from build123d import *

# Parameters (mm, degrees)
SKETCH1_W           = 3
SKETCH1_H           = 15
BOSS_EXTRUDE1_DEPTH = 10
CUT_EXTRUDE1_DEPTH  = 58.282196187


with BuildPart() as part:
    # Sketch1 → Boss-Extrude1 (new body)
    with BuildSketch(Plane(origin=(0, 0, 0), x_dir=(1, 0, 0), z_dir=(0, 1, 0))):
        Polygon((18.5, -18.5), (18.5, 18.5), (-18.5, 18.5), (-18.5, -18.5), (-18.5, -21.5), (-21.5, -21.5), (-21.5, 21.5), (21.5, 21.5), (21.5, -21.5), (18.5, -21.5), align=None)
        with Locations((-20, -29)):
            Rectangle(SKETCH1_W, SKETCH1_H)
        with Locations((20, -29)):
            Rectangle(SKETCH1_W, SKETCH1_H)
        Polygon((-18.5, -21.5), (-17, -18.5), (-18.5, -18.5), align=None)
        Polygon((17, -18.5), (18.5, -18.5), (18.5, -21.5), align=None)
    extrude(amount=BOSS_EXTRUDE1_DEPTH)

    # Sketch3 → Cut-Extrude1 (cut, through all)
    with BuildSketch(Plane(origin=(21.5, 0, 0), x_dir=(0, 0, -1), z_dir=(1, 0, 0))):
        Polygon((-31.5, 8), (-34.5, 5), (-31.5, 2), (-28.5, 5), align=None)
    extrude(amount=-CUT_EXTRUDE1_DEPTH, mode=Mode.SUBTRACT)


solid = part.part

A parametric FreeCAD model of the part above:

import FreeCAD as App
import Part
import Sketcher
Q = App.Units.Quantity

doc = App.newDocument("Part")
body = doc.addObject("PartDesign::Body", "Body")

sketch1 = doc.addObject("Sketcher::SketchObject", "Sketch")
body.addObject(sketch1)
sketch1.AttachmentSupport = (doc.XZ_Plane, [""])
sketch1.MapMode = "FlatFace"
sketch1.addGeometry(Part.LineSegment(App.Vector(18.5, -18.5, 0), App.Vector(18.5, 18.5, 0)), False)
sketch1.addGeometry(Part.LineSegment(App.Vector(18.5, 18.5, 0), App.Vector(17, 18.5, 0)), False)
sketch1.addGeometry(Part.LineSegment(App.Vector(17, 18.5, 0), App.Vector(18.5, 21.5, 0)), False)
sketch1.addGeometry(Part.LineSegment(App.Vector(18.5, 21.5, 0), App.Vector(18.5, 36.5, 0)), False)
sketch1.addGeometry(Part.LineSegment(App.Vector(18.5, 36.5, 0), App.Vector(21.5, 36.5, 0)), False)
sketch1.addGeometry(Part.LineSegment(App.Vector(21.5, 36.5, 0), App.Vector(21.5, -21.5, 0)), False)
sketch1.addGeometry(Part.LineSegment(App.Vector(21.5, -21.5, 0), App.Vector(-21.5, -21.5, 0)), False)
sketch1.addGeometry(Part.LineSegment(App.Vector(-21.5, -21.5, 0), App.Vector(-21.5, 36.5, 0)), False)
sketch1.addGeometry(Part.LineSegment(App.Vector(-21.5, 36.5, 0), App.Vector(-18.5, 36.5, 0)), False)
sketch1.addGeometry(Part.LineSegment(App.Vector(-18.5, 36.5, 0), App.Vector(-18.5, 21.5, 0)), False)
sketch1.addGeometry(Part.LineSegment(App.Vector(-18.5, 21.5, 0), App.Vector(-17, 18.5, 0)), False)
sketch1.addGeometry(Part.LineSegment(App.Vector(-17, 18.5, 0), App.Vector(-18.5, 18.5, 0)), False)
sketch1.addGeometry(Part.LineSegment(App.Vector(-18.5, 18.5, 0), App.Vector(-18.5, -18.5, 0)), False)
sketch1.addGeometry(Part.LineSegment(App.Vector(-18.5, -18.5, 0), App.Vector(18.5, -18.5, 0)), False)
sketch1.addConstraint(Sketcher.Constraint("Coincident", 0, 2, 1, 1))
sketch1.addConstraint(Sketcher.Constraint("Coincident", 1, 2, 2, 1))
sketch1.addConstraint(Sketcher.Constraint("Coincident", 2, 2, 3, 1))
sketch1.addConstraint(Sketcher.Constraint("Coincident", 3, 2, 4, 1))
sketch1.addConstraint(Sketcher.Constraint("Coincident", 4, 2, 5, 1))
sketch1.addConstraint(Sketcher.Constraint("Coincident", 5, 2, 6, 1))
sketch1.addConstraint(Sketcher.Constraint("Coincident", 6, 2, 7, 1))
sketch1.addConstraint(Sketcher.Constraint("Coincident", 7, 2, 8, 1))
sketch1.addConstraint(Sketcher.Constraint("Coincident", 8, 2, 9, 1))
sketch1.addConstraint(Sketcher.Constraint("Coincident", 9, 2, 10, 1))
sketch1.addConstraint(Sketcher.Constraint("Coincident", 10, 2, 11, 1))
sketch1.addConstraint(Sketcher.Constraint("Coincident", 11, 2, 12, 1))
sketch1.addConstraint(Sketcher.Constraint("Coincident", 12, 2, 13, 1))
sketch1.addConstraint(Sketcher.Constraint("Coincident", 13, 2, 0, 1))
sketch1.addConstraint(Sketcher.Constraint("Vertical", 0))
sketch1.addConstraint(Sketcher.Constraint("Horizontal", 1))
sketch1.addConstraint(Sketcher.Constraint("Vertical", 3))
sketch1.addConstraint(Sketcher.Constraint("Horizontal", 4))
sketch1.addConstraint(Sketcher.Constraint("Vertical", 5))
sketch1.addConstraint(Sketcher.Constraint("Horizontal", 6))
sketch1.addConstraint(Sketcher.Constraint("Vertical", 7))
sketch1.addConstraint(Sketcher.Constraint("Horizontal", 8))
sketch1.addConstraint(Sketcher.Constraint("Vertical", 9))
sketch1.addConstraint(Sketcher.Constraint("Horizontal", 11))
sketch1.addConstraint(Sketcher.Constraint("Vertical", 12))
sketch1.addConstraint(Sketcher.Constraint("Horizontal", 13))
sketch1.addConstraint(Sketcher.Constraint("Symmetric", 0, 2, 12, 2, -1, 1))
sketch1.addConstraint(Sketcher.Constraint("Symmetric", 4, 2, 7, 2, -2))
sketch1.addConstraint(Sketcher.Constraint("Symmetric", 2, 2, 9, 2, -2))
sketch1.addConstraint(Sketcher.Constraint("Symmetric", 1, 2, 10, 2, -2))
sketch1.addConstraint(Sketcher.Constraint("Vertical", 0, 2, 2, 2))
sketch1.addConstraint(Sketcher.Constraint("Equal", 13, 0))
sketch1.addConstraint(Sketcher.Constraint("DistanceX", 4, 1, 4, 2, Q("3 mm")))
sketch1.addConstraint(Sketcher.Constraint("DistanceX", 6, 2, 6, 1, Q("43 mm")))
sketch1.addConstraint(Sketcher.Constraint("DistanceY", 3, 1, 3, 2, Q("15 mm")))
sketch1.addConstraint(Sketcher.Constraint("DistanceY", 5, 2, 5, 1, Q("58 mm")))
sketch1.addConstraint(Sketcher.Constraint("DistanceX", 1, 2, 1, 1, Q("1.5 mm")))
sketch1.addConstraint(Sketcher.Constraint("DistanceY", 0, 2, 2, 2, Q("3 mm")))
pad1 = doc.addObject("PartDesign::Pad", "Pad")
body.addObject(pad1)
pad1.Profile = sketch1
pad1.Length = 10
pad1.Reversed = True

sketch2 = doc.addObject("Sketcher::SketchObject", "Sketch001")
body.addObject(sketch2)
sketch2.AttachmentSupport = (doc.YZ_Plane, [""])
sketch2.MapMode = "FlatFace"
sketch2.AttachmentOffset = App.Placement(App.Vector(0, 0, 21.5), App.Rotation())
sketch2.addGeometry(Part.LineSegment(App.Vector(8, 31.5, 0), App.Vector(5, 34.5, 0)), False)
sketch2.addGeometry(Part.LineSegment(App.Vector(5, 34.5, 0), App.Vector(2, 31.5, 0)), False)
sketch2.addGeometry(Part.LineSegment(App.Vector(2, 31.5, 0), App.Vector(5, 28.5, 0)), False)
sketch2.addGeometry(Part.LineSegment(App.Vector(5, 28.5, 0), App.Vector(8, 31.5, 0)), False)
sketch2.addConstraint(Sketcher.Constraint("Coincident", 0, 2, 1, 1))
sketch2.addConstraint(Sketcher.Constraint("Coincident", 1, 2, 2, 1))
sketch2.addConstraint(Sketcher.Constraint("Coincident", 2, 2, 3, 1))
sketch2.addConstraint(Sketcher.Constraint("Coincident", 3, 2, 0, 1))
sketch2.addConstraint(Sketcher.Constraint("Perpendicular", 0, 1))
sketch2.addConstraint(Sketcher.Constraint("Perpendicular", 1, 2))
sketch2.addConstraint(Sketcher.Constraint("Perpendicular", 2, 3))
sketch2.addConstraint(Sketcher.Constraint("Horizontal", 1, 2, 3, 2))
sketch2.addConstraint(Sketcher.Constraint("Vertical", 0, 2, 2, 2))
sketch2.addConstraint(Sketcher.Constraint("DistanceX", -1, 1, 0, 2, Q("5 mm")))
sketch2.addConstraint(Sketcher.Constraint("DistanceX", -1, 1, 1, 2, Q("2 mm")))
sketch2.addConstraint(Sketcher.Constraint("DistanceY", -1, 1, 0, 2, Q("34.5 mm")))
pocket1 = doc.addObject("PartDesign::Pocket", "Pocket")
body.addObject(pocket1)
pocket1.Profile = sketch2
pocket1.Type = "ThroughAll"

doc.recompute()
